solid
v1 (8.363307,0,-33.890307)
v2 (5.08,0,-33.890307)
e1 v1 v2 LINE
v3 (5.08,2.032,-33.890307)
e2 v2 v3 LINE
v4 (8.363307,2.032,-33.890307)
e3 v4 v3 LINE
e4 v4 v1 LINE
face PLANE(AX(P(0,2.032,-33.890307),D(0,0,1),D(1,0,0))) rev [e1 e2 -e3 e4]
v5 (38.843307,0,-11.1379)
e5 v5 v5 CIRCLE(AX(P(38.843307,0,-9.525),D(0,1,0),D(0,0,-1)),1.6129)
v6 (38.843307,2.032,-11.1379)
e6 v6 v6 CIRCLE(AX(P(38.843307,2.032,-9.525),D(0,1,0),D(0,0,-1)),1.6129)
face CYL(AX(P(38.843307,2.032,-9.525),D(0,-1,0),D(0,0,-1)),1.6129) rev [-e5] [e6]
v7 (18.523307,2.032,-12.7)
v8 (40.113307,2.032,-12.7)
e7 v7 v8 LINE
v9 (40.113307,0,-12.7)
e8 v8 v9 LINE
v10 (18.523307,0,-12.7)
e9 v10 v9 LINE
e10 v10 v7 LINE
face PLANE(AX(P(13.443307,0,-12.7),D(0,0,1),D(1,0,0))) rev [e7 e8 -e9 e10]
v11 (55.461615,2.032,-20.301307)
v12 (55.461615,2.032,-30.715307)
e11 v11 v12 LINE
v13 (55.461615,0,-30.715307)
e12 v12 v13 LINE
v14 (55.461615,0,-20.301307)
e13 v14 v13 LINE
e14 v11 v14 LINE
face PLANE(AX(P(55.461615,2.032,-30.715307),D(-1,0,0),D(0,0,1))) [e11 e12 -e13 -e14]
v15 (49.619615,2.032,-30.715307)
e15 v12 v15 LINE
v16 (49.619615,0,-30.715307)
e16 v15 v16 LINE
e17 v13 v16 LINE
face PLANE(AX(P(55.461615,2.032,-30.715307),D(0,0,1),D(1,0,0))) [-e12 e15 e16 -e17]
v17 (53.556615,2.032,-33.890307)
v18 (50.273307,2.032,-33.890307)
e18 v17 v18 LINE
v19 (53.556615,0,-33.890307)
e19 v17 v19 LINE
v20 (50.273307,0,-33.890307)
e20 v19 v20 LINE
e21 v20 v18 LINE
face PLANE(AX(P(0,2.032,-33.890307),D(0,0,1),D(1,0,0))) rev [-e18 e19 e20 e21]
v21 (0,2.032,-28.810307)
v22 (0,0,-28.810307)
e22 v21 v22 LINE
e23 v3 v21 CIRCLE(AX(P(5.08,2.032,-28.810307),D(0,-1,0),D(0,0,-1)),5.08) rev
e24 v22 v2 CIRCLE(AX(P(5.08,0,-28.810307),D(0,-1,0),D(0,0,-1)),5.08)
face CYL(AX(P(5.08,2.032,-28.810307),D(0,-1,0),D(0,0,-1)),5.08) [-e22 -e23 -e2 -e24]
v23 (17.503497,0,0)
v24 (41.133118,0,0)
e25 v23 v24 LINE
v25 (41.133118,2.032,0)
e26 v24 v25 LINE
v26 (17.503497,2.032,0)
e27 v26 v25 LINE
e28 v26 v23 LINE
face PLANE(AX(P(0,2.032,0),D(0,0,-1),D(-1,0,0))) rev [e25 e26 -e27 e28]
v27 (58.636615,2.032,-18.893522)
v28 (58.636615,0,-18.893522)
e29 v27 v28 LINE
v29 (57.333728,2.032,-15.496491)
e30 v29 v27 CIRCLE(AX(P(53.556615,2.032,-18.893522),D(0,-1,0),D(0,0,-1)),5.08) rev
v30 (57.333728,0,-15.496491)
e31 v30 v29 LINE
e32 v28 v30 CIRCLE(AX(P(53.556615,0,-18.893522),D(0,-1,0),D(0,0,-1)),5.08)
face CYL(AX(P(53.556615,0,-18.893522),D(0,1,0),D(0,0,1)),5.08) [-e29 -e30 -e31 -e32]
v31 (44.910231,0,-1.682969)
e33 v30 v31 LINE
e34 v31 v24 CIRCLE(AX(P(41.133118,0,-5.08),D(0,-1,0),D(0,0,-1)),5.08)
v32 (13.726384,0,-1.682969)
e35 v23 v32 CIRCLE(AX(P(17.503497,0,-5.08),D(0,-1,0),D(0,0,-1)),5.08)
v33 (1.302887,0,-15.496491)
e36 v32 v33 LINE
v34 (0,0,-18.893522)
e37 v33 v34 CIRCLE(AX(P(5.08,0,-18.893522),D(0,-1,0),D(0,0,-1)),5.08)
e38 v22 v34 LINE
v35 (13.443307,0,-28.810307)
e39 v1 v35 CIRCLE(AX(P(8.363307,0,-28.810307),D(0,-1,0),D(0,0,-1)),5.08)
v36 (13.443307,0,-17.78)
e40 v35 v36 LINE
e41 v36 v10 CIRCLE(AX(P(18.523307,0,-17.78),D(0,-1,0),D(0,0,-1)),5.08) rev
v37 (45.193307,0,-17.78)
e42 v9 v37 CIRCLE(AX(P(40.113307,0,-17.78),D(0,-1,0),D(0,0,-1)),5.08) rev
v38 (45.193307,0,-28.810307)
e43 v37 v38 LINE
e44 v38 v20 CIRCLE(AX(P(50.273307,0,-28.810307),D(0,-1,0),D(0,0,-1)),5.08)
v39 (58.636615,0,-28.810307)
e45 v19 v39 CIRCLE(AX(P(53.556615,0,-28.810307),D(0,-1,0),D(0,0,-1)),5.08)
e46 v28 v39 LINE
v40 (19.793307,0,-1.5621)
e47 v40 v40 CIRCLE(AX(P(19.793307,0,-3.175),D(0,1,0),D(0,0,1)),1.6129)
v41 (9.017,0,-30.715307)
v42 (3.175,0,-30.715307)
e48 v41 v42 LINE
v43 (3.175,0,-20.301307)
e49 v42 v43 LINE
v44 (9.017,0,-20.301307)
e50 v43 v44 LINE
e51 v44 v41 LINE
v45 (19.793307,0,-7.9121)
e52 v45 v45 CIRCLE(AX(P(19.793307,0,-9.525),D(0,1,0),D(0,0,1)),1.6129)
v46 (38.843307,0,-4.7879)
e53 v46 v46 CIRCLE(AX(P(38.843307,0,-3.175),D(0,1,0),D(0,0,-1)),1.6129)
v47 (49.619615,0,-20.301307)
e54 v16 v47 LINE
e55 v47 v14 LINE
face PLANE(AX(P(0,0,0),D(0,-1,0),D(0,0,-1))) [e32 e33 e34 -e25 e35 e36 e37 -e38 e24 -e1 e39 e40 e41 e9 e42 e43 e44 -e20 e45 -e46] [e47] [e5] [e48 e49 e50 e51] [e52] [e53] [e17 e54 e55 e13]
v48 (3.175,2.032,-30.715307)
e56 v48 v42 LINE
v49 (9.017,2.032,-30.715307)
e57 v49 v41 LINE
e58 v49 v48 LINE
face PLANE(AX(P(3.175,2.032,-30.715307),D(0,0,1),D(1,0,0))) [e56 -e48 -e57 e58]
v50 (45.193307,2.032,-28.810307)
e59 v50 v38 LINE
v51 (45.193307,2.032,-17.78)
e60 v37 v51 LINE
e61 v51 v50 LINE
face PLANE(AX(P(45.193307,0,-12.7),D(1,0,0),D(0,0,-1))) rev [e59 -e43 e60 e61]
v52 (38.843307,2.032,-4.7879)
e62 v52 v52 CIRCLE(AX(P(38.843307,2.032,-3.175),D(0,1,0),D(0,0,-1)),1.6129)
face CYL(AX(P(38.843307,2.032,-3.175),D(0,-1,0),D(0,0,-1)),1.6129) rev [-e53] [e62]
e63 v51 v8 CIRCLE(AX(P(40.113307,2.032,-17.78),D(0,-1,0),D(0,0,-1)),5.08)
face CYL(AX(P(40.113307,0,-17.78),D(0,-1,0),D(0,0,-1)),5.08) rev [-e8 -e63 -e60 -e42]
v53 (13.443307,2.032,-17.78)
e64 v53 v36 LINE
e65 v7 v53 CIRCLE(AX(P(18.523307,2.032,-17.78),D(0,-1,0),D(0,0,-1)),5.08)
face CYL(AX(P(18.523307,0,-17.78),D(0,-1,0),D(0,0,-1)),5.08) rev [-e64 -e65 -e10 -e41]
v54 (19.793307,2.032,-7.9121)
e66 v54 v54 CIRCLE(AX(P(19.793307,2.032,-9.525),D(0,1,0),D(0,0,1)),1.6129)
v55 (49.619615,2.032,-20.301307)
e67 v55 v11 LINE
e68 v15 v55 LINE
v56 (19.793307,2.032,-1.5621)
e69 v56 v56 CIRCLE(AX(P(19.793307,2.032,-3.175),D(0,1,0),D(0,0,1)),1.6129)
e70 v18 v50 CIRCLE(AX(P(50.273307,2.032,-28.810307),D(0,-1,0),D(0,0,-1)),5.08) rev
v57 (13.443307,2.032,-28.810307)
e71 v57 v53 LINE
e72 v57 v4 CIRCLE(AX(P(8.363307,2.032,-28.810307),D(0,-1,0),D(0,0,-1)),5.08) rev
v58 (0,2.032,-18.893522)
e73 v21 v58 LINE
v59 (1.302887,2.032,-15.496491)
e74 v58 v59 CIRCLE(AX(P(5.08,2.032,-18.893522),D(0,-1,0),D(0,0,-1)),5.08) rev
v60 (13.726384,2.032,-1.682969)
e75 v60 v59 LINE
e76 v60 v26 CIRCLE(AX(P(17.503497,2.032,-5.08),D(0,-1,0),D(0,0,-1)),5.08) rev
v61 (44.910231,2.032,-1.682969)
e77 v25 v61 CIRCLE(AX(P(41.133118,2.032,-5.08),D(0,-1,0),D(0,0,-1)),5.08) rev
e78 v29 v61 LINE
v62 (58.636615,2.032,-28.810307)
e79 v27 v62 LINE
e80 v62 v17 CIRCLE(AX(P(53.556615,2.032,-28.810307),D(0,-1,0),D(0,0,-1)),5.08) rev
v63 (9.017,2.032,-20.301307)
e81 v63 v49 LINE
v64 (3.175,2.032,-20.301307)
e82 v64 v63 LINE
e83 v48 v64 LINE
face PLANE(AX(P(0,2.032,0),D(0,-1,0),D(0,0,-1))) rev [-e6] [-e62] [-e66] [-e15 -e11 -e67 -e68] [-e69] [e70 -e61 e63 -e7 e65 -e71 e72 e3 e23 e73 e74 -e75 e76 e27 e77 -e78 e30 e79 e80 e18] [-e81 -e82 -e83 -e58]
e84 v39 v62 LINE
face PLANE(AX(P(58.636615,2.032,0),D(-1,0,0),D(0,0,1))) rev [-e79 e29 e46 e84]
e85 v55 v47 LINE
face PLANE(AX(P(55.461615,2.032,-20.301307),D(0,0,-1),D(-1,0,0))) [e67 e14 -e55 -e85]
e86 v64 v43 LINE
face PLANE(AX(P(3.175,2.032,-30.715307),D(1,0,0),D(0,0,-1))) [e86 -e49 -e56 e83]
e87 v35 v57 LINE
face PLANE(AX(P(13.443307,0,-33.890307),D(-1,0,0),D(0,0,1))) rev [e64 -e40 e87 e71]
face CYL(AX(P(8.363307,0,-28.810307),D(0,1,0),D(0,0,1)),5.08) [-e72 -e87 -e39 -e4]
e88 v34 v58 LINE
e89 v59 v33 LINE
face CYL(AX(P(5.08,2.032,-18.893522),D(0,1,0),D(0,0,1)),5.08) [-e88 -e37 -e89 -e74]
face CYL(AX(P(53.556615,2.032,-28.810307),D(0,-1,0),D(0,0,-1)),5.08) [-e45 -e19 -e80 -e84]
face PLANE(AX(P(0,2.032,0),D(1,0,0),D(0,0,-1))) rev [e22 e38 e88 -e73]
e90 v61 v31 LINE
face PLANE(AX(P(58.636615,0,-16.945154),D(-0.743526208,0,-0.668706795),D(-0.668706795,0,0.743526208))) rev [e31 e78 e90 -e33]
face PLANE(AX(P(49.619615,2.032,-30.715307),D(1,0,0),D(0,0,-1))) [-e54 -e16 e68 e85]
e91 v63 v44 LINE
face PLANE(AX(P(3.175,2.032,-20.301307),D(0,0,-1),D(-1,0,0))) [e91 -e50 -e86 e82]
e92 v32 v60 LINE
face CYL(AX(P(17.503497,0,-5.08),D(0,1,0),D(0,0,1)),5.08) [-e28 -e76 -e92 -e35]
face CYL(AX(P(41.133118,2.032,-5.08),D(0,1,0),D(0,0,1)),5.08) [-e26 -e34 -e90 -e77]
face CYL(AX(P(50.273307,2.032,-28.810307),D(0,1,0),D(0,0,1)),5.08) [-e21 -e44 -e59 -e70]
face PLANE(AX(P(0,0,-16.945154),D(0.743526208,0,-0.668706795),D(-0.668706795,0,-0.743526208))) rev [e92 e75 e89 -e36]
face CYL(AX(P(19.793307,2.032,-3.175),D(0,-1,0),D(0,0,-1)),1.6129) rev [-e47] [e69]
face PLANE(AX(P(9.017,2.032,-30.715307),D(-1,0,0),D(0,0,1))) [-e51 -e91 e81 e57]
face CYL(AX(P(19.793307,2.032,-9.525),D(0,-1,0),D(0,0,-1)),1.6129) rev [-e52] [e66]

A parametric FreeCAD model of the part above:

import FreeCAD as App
import Part
import Sketcher
Q = App.Units.Quantity


def edges_at(feature, points):
    """Names of the edges that pass closest to the given points."""
    edges = feature.Shape.Edges
    near = lambda p: min(range(len(edges)), key=lambda i: edges[i].distToShape(Part.Vertex(*p))[0])
    return sorted({f"Edge{near(p) + 1}" for p in points})


def add_polygon(sketch, points):
    """Adds a closed chain of lines whose ends are joined by coincident constraints."""
    first, n = sketch.GeometryCount, len(points)
    for a, b in zip(points, points[1:] + points[:1]):
        sketch.addGeometry(Part.LineSegment(App.Vector(*a, 0), App.Vector(*b, 0)), False)
    for i in range(n):
        sketch.addConstraint(Sketcher.Constraint("Coincident", first + i, 2, first + (i + 1) % n, 1))

doc = App.newDocument("Part")
body = doc.addObject("PartDesign::Body", "Body")

sketch1 = body.newObject("Sketcher::SketchObject", "Sketch")
sketch1.AttachmentSupport = (doc.getObject("XZ_Plane"), [""])
sketch1.MapMode = "FlatFace"
add_polygon(sketch1, [(0, -33.9), (0, 0), (58.6, 0), (58.6, -33.9)])
sketch1.addGeometry(Part.Circle(App.Vector(19.8, -3.2, 0), App.Vector(0, 0, 1), 1.6), False)
sketch1.addGeometry(Part.Circle(App.Vector(19.8, -9.5, 0), App.Vector(0, 0, 1), 1.6), False)
sketch1.addGeometry(Part.Circle(App.Vector(38.8, -3.2, 0), App.Vector(0, 0, 1), 1.6), False)
sketch1.addGeometry(Part.Circle(App.Vector(38.8, -9.5, 0), App.Vector(0, 0, 1), 1.6), False)
add_polygon(sketch1, [(9, -20.3), (3.2, -20.3), (3.2, -30.7), (9, -30.7)])
add_polygon(sketch1, [(55.5, -20.3), (49.6, -20.3), (49.6, -30.7), (55.5, -30.7)])
sketch1.addConstraint(Sketcher.Constraint("Vertical", 0))
sketch1.addConstraint(Sketcher.Constraint("Horizontal", 1))
sketch1.addConstraint(Sketcher.Constraint("Vertical", 2))
sketch1.addConstraint(Sketcher.Constraint("Horizontal", 3))
sketch1.addConstraint(Sketcher.Constraint("Horizontal", 8))
sketch1.addConstraint(Sketcher.Constraint("Vertical", 9))
sketch1.addConstraint(Sketcher.Constraint("Horizontal", 10))
sketch1.addConstraint(Sketcher.Constraint("Vertical", 11))
sketch1.addConstraint(Sketcher.Constraint("Horizontal", 12))
sketch1.addConstraint(Sketcher.Constraint("Vertical", 13))
sketch1.addConstraint(Sketcher.Constraint("Horizontal", 14))
sketch1.addConstraint(Sketcher.Constraint("Vertical", 15))
sketch1.addConstraint(Sketcher.Constraint("Coincident", 0, 2, -1, 1))
sketch1.addConstraint(Sketcher.Constraint("Equal", 4, 5))
sketch1.addConstraint(Sketcher.Constraint("Equal", 5, 6))
sketch1.addConstraint(Sketcher.Constraint("Equal", 6, 7))
sketch1.addConstraint(Sketcher.Constraint("Horizontal", 4, 3, 6, 3))
sketch1.addConstraint(Sketcher.Constraint("Horizontal", 5, 3, 7, 3))
sketch1.addConstraint(Sketcher.Constraint("Horizontal", 11, 2, 12, 2))
sketch1.addConstraint(Sketcher.Constraint("Horizontal", 10, 2, 13, 2))
sketch1.addConstraint(Sketcher.Constraint("Vertical", 4, 3, 5, 3))
sketch1.addConstraint(Sketcher.Constraint("Vertical", 6, 3, 7, 3))
sketch1.addConstraint(Sketcher.Constraint("Equal", 10, 12))
sketch1.addConstraint(Sketcher.Constraint("Diameter", 4, Q("0.127 in")))
sketch1.addConstraint(Sketcher.Constraint("DistanceX", 8, 2, 8, 1, Q("0.23 in")))
sketch1.addConstraint(Sketcher.Constraint("DistanceY", 9, 2, 9, 1, Q("0.41 in")))
sketch1.addConstraint(Sketcher.Constraint("DistanceY", 5, 3, 4, 3, Q("0.25 in")))
sketch1.addConstraint(Sketcher.Constraint("DistanceX", 4, 3, 6, 3, Q("0.75 in")))
sketch1.addConstraint(Sketcher.Constraint("DistanceY", 4, 3, -1, 1, Q("0.125 in")))
sketch1.addConstraint(Sketcher.Constraint("DistanceX", -1, 1, 8, 2, Q("0.125 in")))
sketch1.addConstraint(Sketcher.Constraint("DistanceY", 3, 2, 8, 2, Q("0.535 in")))
sketch1.addConstraint(Sketcher.Constraint("DistanceX", 12, 2, 2, 2, Q("0.355 in")))
sketch1.addConstraint(Sketcher.Constraint("DistanceX", 1, 1, 1, 2, Q("58.636615 mm")))
sketch1.addConstraint(Sketcher.Constraint("DistanceY", 0, 1, 0, 2, Q("33.890307 mm")))
sketch1.addConstraint(Sketcher.Constraint("DistanceX", -1, 1, 4, 3, Q("19.793307 mm")))
pad1 = body.newObject("PartDesign::Pad", "Pad")
pad1.Profile = sketch1
pad1.Length = Q("0.08 in")
pad1.Reversed = True

sketch2 = body.newObject("Sketcher::SketchObject", "Sketch001")
sketch2.AttachmentSupport = (doc.getObject("XZ_Plane"), [""])
sketch2.MapMode = "FlatFace"
sketch2.AttachmentOffset = App.Placement(App.Vector(0, 0, -0.08 * 25.4), App.Rotation())
add_polygon(sketch2, [(13, -34), (13, -13), (45, -13), (45, -34)])
add_polygon(sketch2, [(15, 0), (0, -17), (0, 0)])
add_polygon(sketch2, [(43, 0), (59, 0), (59, -17)])
sketch2.addConstraint(Sketcher.Constraint("Vertical", 0))
sketch2.addConstraint(Sketcher.Constraint("Horizontal", 1))
sketch2.addConstraint(Sketcher.Constraint("Vertical", 2))
sketch2.addConstraint(Sketcher.Constraint("Horizontal", 3))
sketch2.addConstraint(Sketcher.Constraint("Vertical", 5))
sketch2.addConstraint(Sketcher.Constraint("Horizontal", 6))
sketch2.addConstraint(Sketcher.Constraint("Horizontal", 7))
sketch2.addConstraint(Sketcher.Constraint("Vertical", 8))
sketch2.addConstraint(Sketcher.Constraint("Coincident", 5, 2, -1, 1))
sketch2.addConstraint(Sketcher.Constraint("PointOnObject", 7, 2, -1))
sketch2.addConstraint(Sketcher.Constraint("Horizontal", 4, 2, 8, 2))
sketch2.addConstraint(Sketcher.Constraint("Equal", 6, 7))
sketch2.addConstraint(Sketcher.Constraint("DistanceX", 6, 1, 6, 2, Q("0.6 in")))
sketch2.addConstraint(Sketcher.Constraint("DistanceX", 1, 1, 1, 2, Q("1.25 in")))
sketch2.addConstraint(Sketcher.Constraint("DistanceY", 0, 2, -1, 1, Q("0.5 in")))
sketch2.addConstraint(Sketcher.Constraint("DistanceY", 0, 1, 0, 2, Q("21.190307 mm")))
sketch2.addConstraint(Sketcher.Constraint("DistanceY", 5, 1, 5, 2, Q("16.945154 mm")))
sketch2.addConstraint(Sketcher.Constraint("DistanceX", -1, 1, 0, 2, Q("13.443307 mm")))
sketch2.addConstraint(Sketcher.Constraint("DistanceX", -1, 1, 7, 2, Q("58.636615 mm")))
pocket1 = body.newObject("PartDesign::Pocket", "Pocket")
pocket1.Profile = sketch2
pocket1.Type = "ThroughAll"
pocket1.Reversed = True
doc.recompute()

fillet = body.newObject("PartDesign::Fillet", "Fillet")
fillet.Base = (pocket1, edges_at(pocket1, [
    (43.397, 1.016, 0),
    (58.637, 1.016, -16.945),
    (0, 1.016, -16.945),
    (15.24, 1.016, 0),
    (0, 1.016, -33.89),
    (58.637, 1.016, -33.89),
    (13.443, 1.016, -33.89),
    (45.193, 1.016, -33.89),
    (45.193, 1.016, -12.7),
    (13.443, 1.016, -12.7),
]))
fillet.Radius = Q("0.2 in")

doc.recompute()
